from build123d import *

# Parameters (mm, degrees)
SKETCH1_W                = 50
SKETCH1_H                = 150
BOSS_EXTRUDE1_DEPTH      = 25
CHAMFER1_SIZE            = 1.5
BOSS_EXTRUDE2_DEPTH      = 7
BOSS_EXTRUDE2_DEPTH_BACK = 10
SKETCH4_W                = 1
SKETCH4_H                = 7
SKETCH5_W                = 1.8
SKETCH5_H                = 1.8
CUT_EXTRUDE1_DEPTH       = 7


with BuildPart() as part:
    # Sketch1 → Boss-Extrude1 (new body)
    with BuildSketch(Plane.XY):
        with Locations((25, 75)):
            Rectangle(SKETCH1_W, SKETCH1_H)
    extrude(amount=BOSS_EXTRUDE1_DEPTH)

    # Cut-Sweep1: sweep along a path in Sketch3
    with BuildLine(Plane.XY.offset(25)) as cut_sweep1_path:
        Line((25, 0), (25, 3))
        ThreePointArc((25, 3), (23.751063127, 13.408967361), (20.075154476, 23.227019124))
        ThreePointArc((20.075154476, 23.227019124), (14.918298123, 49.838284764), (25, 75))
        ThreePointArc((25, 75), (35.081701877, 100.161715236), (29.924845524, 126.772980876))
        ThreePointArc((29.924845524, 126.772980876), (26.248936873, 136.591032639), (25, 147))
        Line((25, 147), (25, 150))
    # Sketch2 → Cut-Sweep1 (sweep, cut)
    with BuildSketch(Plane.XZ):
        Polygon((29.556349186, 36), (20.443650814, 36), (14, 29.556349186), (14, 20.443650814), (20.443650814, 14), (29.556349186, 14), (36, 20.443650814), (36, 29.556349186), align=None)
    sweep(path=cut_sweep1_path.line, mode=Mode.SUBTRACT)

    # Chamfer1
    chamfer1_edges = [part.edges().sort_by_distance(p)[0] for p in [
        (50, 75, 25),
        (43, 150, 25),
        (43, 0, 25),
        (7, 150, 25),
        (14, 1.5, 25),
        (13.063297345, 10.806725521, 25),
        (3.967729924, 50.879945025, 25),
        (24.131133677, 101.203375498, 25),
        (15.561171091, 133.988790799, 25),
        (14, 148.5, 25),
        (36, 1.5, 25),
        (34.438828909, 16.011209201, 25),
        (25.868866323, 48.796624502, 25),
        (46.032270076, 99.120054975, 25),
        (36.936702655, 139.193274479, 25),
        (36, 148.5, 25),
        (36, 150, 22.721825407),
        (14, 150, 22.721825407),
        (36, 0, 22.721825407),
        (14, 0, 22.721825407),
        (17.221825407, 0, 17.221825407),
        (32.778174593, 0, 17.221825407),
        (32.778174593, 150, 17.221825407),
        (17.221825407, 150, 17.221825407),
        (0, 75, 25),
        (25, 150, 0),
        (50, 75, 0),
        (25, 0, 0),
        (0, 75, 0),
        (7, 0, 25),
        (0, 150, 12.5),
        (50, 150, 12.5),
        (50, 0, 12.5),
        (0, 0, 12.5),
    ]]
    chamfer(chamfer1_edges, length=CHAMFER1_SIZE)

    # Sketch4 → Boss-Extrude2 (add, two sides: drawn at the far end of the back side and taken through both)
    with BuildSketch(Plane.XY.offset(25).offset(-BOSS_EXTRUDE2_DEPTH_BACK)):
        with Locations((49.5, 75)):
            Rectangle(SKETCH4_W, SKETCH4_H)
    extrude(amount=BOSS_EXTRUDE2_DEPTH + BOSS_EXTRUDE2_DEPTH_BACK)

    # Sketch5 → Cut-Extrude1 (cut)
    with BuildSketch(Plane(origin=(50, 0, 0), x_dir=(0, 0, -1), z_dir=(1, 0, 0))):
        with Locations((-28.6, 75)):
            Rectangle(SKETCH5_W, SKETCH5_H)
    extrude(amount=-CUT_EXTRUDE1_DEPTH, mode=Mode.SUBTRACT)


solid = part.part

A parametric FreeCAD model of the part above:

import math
import FreeCAD as App
import Part
import Sketcher
from FreeCAD import Vector


def edges_at(feature, points):
    """Names of the edges that pass closest to the given points."""
    edges = feature.Shape.Edges
    near = lambda p: min(range(len(edges)), key=lambda i: edges[i].distToShape(Part.Vertex(*p))[0])
    return sorted({f"Edge{near(p) + 1}" for p in points})


def add_polygon(sketch, points):
    """Adds a closed chain of lines whose ends are joined by coincident constraints."""
    first, n = sketch.GeometryCount, len(points)
    for a, b in zip(points, points[1:] + points[:1]):
        sketch.addGeometry(Part.LineSegment(App.Vector(*a, 0), App.Vector(*b, 0)), False)
    for i in range(n):
        sketch.addConstraint(Sketcher.Constraint("Coincident", first + i, 2, first + (i + 1) % n, 1))

doc = App.newDocument("Part")
body = doc.addObject("PartDesign::Body", "Body")

# Sketch on XY plane
sketch1 = body.newObject("Sketcher::SketchObject", "Sketch")
sketch1.AttachmentSupport = (doc.getObject("XY_Plane"), [""])
sketch1.MapMode = "FlatFace"
add_polygon(sketch1, [(0, 150), (0, 0), (50, 0), (50, 150)])  # lines 0-3
sketch1.addConstraint(Sketcher.Constraint("Vertical", 0))
sketch1.addConstraint(Sketcher.Constraint("Horizontal", 1))
sketch1.addConstraint(Sketcher.Constraint("Vertical", 2))
sketch1.addConstraint(Sketcher.Constraint("Horizontal", 3))
sketch1.addConstraint(Sketcher.Constraint("Coincident", 0, 2, -1, 1))
sketch1.addConstraint(Sketcher.Constraint("DistanceX", 1, 1, 1, 2, 50.0))
sketch1.addConstraint(Sketcher.Constraint("DistanceY", 0, 2, 0, 1, 150.0))
pad1 = body.newObject("PartDesign::Pad", "Pad")
pad1.Profile = sketch1
pad1.Length = 25

# Sketch on XZ plane
sketch2 = body.newObject("Sketcher::SketchObject", "Sketch001")
sketch2.AttachmentSupport = (doc.getObject("XZ_Plane"), [""])
sketch2.MapMode = "FlatFace"
add_polygon(sketch2, [(30, 36), (20, 36), (14, 30), (14, 20), (20, 14), (30, 14), (36, 20), (36, 30)])  # lines 0-7
sketch2.addConstraint(Sketcher.Constraint("Horizontal", 0))
sketch2.addConstraint(Sketcher.Constraint("Vertical", 2))
sketch2.addConstraint(Sketcher.Constraint("Horizontal", 4))
sketch2.addConstraint(Sketcher.Constraint("Vertical", 6))
sketch2.addConstraint(Sketcher.Constraint("Perpendicular", 1, 3))
sketch2.addConstraint(Sketcher.Constraint("Perpendicular", 3, 5))
sketch2.addConstraint(Sketcher.Constraint("Perpendicular", 5, 7))
sketch2.addConstraint(Sketcher.Constraint("Horizontal", 2, 2, 5, 2))
sketch2.addConstraint(Sketcher.Constraint("Horizontal", 1, 2, 6, 2))
sketch2.addConstraint(Sketcher.Constraint("Vertical", 0, 2, 3, 2))
sketch2.addConstraint(Sketcher.Constraint("Vertical", 4, 2, 7, 2))
sketch2.addConstraint(Sketcher.Constraint("Equal", 4, 2))
sketch2.addConstraint(Sketcher.Constraint("DistanceY", -1, 1, 0, 2, 36.0))
sketch2.addConstraint(Sketcher.Constraint("DistanceX", -1, 1, 1, 2, 14.0))
sketch2.addConstraint(Sketcher.Constraint("DistanceY", -1, 1, 3, 2, 14.0))
sketch2.addConstraint(Sketcher.Constraint("DistanceX", 0, 2, 0, 1, 9.112698))

# Sketch on XY plane
sketch3 = body.newObject("Sketcher::SketchObject", "Sketch002")
sketch3.AttachmentSupport = (doc.getObject("XY_Plane"), [""])
sketch3.MapMode = "FlatFace"
sketch3.AttachmentOffset = App.Placement(Vector(0, 0, 25), App.Rotation())
sketch3.addGeometry(Part.LineSegment(Vector(25, 0, 0), Vector(25, 3, 0)), False)
sketch3.addGeometry(Part.ArcOfCircle(Part.Circle(Vector(-19, 3, 0), Vector(0, 0, 1), 44), math.radians(0), math.radians(27)), False)
sketch3.addGeometry(Part.ArcOfCircle(Part.Circle(Vector(62.7, 45.3, 0), Vector(0, 0, 1), 48), math.radians(142), math.radians(207)), False)
sketch3.addGeometry(Part.ArcOfCircle(Part.Circle(Vector(-12.7, 104.7, 0), Vector(0, 0, 1), 48), math.radians(-38), math.radians(27)), False)
sketch3.addGeometry(Part.ArcOfCircle(Part.Circle(Vector(69, 147, 0), Vector(0, 0, 1), 44), math.radians(180), math.radians(207)), False)
sketch3.addGeometry(Part.LineSegment(Vector(25, 147, 0), Vector(25, 150, 0)), False)
sketch3.addConstraint(Sketcher.Constraint("Tangent", 0, 2, 1, 1))
sketch3.addConstraint(Sketcher.Constraint("Tangent", 1, 2, 2, 2))
sketch3.addConstraint(Sketcher.Constraint("Tangent", 2, 1, 3, 1))
sketch3.addConstraint(Sketcher.Constraint("Tangent", 3, 2, 4, 2))
sketch3.addConstraint(Sketcher.Constraint("Tangent", 4, 1, 5, 1))
sketch3.addConstraint(Sketcher.Constraint("Vertical", 0))
sketch3.addConstraint(Sketcher.Constraint("Vertical", 5))
sketch3.addConstraint(Sketcher.Constraint("Equal", 2, 3))
sketch3.addConstraint(Sketcher.Constraint("Equal", 1, 4))
sketch3.addConstraint(Sketcher.Constraint("PointOnObject", 0, 1, -1))
sketch3.addConstraint(Sketcher.Constraint("Vertical", 0, 2, 2, 1))
sketch3.addConstraint(Sketcher.Constraint("Vertical", 2, 1, 4, 1))
sketch3.addConstraint(Sketcher.Constraint("Equal", 0, 5))
sketch3.addConstraint(Sketcher.Constraint("Radius", 1, 44.0))
sketch3.addConstraint(Sketcher.Constraint("Radius", 2, 48.0))
sketch3.addConstraint(Sketcher.Constraint("DistanceY", 0, 1, 0, 2, 3.0))
sketch3.addConstraint(Sketcher.Constraint("DistanceX", 1, 3, -1, 1, 19.0))
sketch3.addConstraint(Sketcher.Constraint("DistanceY", -1, 1, 4, 3, 147.0))
doc.recompute()

subtractivepipe = body.newObject("PartDesign::SubtractivePipe", "SubtractivePipe")
subtractivepipe.Profile = sketch2
subtractivepipe.Spine = (sketch3, ["Edge1", "Edge2", "Edge3", "Edge4", "Edge5", "Edge6"])
doc.recompute()

chamfer = body.newObject("PartDesign::Chamfer", "Chamfer")
chamfer.Base = (subtractivepipe, edges_at(subtractivepipe, [
    (50, 75, 25),
    (43, 150, 25),
    (43, 0, 25),
    (7, 150, 25),
    (14, 1.5, 25),
    (13.063, 10.807, 25),
    (3.968, 50.88, 25),
    (24.131, 101.203, 25),
    (15.561, 133.989, 25),
    (14, 148.5, 25),
    (36, 1.5, 25),
    (34.439, 16.011, 25),
    (25.869, 48.797, 25),
    (46.032, 99.12, 25),
    (36.937, 139.193, 25),
    (36, 148.5, 25),
    (36, 150, 22.722),
    (14, 150, 22.722),
    (36, 0, 22.722),
    (14, 0, 22.722),
    (17.222, 0, 17.222),
    (32.778, 0, 17.222),
    (32.778, 150, 17.222),
    (17.222, 150, 17.222),
    (0, 75, 25),
    (25, 150, 0),
    (50, 75, 0),
    (25, 0, 0),
    (0, 75, 0),
    (7, 0, 25),
    (0, 150, 12.5),
    (50, 150, 12.5),
    (50, 0, 12.5),
    (0, 0, 12.5),
]))
chamfer.Size = 1.5

# Sketch on XY plane
sketch4 = body.newObject("Sketcher::SketchObject", "Sketch003")
sketch4.AttachmentSupport = (doc.getObject("XY_Plane"), [""])
sketch4.MapMode = "FlatFace"
sketch4.AttachmentOffset = App.Placement(Vector(0, 0, 25), App.Rotation())
add_polygon(sketch4, [(49, 78.5), (49, 71.5), (50, 71.5), (50, 78.5)])  # lines 0-3
sketch4.addConstraint(Sketcher.Constraint("Vertical", 0))
sketch4.addConstraint(Sketcher.Constraint("Horizontal", 1))
sketch4.addConstraint(Sketcher.Constraint("Vertical", 2))
sketch4.addConstraint(Sketcher.Constraint("Horizontal", 3))
sketch4.addConstraint(Sketcher.Constraint("DistanceX", 1, 1, 1, 2, 1.0))
sketch4.addConstraint(Sketcher.Constraint("DistanceY", 0, 2, 0, 1, 7.0))
sketch4.addConstraint(Sketcher.Constraint("DistanceX", -1, 1, 0, 2, 49.0))
sketch4.addConstraint(Sketcher.Constraint("DistanceY", -1, 1, 0, 2, 71.5))
pad2 = body.newObject("PartDesign::Pad", "Pad001")
pad2.Profile = sketch4
pad2.Type = "TwoLengths"
pad2.Length = 7
pad2.Length2 = 10

# Sketch on YZ plane
sketch5 = body.newObject("Sketcher::SketchObject", "Sketch004")
sketch5.AttachmentSupport = (doc.getObject("YZ_Plane"), [""])
sketch5.MapMode = "FlatFace"
sketch5.AttachmentOffset = App.Placement(Vector(0, 0, 50), App.Rotation())
add_polygon(sketch5, [(75.9, 29.5), (74.1, 29.5), (74.1, 27.7), (75.9, 27.7)])  # lines 0-3
sketch5.addConstraint(Sketcher.Constraint("Horizontal", 0))
sketch5.addConstraint(Sketcher.Constraint("Vertical", 1))
sketch5.addConstraint(Sketcher.Constraint("Horizontal", 2))
sketch5.addConstraint(Sketcher.Constraint("Vertical", 3))
sketch5.addConstraint(Sketcher.Constraint("Equal", 2, 1))
sketch5.addConstraint(Sketcher.Constraint("DistanceX", 0, 2, 0, 1, 1.8))
sketch5.addConstraint(Sketcher.Constraint("DistanceX", -1, 1, 0, 2, 74.1))
sketch5.addConstraint(Sketcher.Constraint("DistanceY", -1, 1, 0, 2, 29.5))
pocket1 = body.newObject("PartDesign::Pocket", "Pocket")
pocket1.Profile = sketch5
pocket1.Length = 7

doc.recompute()
